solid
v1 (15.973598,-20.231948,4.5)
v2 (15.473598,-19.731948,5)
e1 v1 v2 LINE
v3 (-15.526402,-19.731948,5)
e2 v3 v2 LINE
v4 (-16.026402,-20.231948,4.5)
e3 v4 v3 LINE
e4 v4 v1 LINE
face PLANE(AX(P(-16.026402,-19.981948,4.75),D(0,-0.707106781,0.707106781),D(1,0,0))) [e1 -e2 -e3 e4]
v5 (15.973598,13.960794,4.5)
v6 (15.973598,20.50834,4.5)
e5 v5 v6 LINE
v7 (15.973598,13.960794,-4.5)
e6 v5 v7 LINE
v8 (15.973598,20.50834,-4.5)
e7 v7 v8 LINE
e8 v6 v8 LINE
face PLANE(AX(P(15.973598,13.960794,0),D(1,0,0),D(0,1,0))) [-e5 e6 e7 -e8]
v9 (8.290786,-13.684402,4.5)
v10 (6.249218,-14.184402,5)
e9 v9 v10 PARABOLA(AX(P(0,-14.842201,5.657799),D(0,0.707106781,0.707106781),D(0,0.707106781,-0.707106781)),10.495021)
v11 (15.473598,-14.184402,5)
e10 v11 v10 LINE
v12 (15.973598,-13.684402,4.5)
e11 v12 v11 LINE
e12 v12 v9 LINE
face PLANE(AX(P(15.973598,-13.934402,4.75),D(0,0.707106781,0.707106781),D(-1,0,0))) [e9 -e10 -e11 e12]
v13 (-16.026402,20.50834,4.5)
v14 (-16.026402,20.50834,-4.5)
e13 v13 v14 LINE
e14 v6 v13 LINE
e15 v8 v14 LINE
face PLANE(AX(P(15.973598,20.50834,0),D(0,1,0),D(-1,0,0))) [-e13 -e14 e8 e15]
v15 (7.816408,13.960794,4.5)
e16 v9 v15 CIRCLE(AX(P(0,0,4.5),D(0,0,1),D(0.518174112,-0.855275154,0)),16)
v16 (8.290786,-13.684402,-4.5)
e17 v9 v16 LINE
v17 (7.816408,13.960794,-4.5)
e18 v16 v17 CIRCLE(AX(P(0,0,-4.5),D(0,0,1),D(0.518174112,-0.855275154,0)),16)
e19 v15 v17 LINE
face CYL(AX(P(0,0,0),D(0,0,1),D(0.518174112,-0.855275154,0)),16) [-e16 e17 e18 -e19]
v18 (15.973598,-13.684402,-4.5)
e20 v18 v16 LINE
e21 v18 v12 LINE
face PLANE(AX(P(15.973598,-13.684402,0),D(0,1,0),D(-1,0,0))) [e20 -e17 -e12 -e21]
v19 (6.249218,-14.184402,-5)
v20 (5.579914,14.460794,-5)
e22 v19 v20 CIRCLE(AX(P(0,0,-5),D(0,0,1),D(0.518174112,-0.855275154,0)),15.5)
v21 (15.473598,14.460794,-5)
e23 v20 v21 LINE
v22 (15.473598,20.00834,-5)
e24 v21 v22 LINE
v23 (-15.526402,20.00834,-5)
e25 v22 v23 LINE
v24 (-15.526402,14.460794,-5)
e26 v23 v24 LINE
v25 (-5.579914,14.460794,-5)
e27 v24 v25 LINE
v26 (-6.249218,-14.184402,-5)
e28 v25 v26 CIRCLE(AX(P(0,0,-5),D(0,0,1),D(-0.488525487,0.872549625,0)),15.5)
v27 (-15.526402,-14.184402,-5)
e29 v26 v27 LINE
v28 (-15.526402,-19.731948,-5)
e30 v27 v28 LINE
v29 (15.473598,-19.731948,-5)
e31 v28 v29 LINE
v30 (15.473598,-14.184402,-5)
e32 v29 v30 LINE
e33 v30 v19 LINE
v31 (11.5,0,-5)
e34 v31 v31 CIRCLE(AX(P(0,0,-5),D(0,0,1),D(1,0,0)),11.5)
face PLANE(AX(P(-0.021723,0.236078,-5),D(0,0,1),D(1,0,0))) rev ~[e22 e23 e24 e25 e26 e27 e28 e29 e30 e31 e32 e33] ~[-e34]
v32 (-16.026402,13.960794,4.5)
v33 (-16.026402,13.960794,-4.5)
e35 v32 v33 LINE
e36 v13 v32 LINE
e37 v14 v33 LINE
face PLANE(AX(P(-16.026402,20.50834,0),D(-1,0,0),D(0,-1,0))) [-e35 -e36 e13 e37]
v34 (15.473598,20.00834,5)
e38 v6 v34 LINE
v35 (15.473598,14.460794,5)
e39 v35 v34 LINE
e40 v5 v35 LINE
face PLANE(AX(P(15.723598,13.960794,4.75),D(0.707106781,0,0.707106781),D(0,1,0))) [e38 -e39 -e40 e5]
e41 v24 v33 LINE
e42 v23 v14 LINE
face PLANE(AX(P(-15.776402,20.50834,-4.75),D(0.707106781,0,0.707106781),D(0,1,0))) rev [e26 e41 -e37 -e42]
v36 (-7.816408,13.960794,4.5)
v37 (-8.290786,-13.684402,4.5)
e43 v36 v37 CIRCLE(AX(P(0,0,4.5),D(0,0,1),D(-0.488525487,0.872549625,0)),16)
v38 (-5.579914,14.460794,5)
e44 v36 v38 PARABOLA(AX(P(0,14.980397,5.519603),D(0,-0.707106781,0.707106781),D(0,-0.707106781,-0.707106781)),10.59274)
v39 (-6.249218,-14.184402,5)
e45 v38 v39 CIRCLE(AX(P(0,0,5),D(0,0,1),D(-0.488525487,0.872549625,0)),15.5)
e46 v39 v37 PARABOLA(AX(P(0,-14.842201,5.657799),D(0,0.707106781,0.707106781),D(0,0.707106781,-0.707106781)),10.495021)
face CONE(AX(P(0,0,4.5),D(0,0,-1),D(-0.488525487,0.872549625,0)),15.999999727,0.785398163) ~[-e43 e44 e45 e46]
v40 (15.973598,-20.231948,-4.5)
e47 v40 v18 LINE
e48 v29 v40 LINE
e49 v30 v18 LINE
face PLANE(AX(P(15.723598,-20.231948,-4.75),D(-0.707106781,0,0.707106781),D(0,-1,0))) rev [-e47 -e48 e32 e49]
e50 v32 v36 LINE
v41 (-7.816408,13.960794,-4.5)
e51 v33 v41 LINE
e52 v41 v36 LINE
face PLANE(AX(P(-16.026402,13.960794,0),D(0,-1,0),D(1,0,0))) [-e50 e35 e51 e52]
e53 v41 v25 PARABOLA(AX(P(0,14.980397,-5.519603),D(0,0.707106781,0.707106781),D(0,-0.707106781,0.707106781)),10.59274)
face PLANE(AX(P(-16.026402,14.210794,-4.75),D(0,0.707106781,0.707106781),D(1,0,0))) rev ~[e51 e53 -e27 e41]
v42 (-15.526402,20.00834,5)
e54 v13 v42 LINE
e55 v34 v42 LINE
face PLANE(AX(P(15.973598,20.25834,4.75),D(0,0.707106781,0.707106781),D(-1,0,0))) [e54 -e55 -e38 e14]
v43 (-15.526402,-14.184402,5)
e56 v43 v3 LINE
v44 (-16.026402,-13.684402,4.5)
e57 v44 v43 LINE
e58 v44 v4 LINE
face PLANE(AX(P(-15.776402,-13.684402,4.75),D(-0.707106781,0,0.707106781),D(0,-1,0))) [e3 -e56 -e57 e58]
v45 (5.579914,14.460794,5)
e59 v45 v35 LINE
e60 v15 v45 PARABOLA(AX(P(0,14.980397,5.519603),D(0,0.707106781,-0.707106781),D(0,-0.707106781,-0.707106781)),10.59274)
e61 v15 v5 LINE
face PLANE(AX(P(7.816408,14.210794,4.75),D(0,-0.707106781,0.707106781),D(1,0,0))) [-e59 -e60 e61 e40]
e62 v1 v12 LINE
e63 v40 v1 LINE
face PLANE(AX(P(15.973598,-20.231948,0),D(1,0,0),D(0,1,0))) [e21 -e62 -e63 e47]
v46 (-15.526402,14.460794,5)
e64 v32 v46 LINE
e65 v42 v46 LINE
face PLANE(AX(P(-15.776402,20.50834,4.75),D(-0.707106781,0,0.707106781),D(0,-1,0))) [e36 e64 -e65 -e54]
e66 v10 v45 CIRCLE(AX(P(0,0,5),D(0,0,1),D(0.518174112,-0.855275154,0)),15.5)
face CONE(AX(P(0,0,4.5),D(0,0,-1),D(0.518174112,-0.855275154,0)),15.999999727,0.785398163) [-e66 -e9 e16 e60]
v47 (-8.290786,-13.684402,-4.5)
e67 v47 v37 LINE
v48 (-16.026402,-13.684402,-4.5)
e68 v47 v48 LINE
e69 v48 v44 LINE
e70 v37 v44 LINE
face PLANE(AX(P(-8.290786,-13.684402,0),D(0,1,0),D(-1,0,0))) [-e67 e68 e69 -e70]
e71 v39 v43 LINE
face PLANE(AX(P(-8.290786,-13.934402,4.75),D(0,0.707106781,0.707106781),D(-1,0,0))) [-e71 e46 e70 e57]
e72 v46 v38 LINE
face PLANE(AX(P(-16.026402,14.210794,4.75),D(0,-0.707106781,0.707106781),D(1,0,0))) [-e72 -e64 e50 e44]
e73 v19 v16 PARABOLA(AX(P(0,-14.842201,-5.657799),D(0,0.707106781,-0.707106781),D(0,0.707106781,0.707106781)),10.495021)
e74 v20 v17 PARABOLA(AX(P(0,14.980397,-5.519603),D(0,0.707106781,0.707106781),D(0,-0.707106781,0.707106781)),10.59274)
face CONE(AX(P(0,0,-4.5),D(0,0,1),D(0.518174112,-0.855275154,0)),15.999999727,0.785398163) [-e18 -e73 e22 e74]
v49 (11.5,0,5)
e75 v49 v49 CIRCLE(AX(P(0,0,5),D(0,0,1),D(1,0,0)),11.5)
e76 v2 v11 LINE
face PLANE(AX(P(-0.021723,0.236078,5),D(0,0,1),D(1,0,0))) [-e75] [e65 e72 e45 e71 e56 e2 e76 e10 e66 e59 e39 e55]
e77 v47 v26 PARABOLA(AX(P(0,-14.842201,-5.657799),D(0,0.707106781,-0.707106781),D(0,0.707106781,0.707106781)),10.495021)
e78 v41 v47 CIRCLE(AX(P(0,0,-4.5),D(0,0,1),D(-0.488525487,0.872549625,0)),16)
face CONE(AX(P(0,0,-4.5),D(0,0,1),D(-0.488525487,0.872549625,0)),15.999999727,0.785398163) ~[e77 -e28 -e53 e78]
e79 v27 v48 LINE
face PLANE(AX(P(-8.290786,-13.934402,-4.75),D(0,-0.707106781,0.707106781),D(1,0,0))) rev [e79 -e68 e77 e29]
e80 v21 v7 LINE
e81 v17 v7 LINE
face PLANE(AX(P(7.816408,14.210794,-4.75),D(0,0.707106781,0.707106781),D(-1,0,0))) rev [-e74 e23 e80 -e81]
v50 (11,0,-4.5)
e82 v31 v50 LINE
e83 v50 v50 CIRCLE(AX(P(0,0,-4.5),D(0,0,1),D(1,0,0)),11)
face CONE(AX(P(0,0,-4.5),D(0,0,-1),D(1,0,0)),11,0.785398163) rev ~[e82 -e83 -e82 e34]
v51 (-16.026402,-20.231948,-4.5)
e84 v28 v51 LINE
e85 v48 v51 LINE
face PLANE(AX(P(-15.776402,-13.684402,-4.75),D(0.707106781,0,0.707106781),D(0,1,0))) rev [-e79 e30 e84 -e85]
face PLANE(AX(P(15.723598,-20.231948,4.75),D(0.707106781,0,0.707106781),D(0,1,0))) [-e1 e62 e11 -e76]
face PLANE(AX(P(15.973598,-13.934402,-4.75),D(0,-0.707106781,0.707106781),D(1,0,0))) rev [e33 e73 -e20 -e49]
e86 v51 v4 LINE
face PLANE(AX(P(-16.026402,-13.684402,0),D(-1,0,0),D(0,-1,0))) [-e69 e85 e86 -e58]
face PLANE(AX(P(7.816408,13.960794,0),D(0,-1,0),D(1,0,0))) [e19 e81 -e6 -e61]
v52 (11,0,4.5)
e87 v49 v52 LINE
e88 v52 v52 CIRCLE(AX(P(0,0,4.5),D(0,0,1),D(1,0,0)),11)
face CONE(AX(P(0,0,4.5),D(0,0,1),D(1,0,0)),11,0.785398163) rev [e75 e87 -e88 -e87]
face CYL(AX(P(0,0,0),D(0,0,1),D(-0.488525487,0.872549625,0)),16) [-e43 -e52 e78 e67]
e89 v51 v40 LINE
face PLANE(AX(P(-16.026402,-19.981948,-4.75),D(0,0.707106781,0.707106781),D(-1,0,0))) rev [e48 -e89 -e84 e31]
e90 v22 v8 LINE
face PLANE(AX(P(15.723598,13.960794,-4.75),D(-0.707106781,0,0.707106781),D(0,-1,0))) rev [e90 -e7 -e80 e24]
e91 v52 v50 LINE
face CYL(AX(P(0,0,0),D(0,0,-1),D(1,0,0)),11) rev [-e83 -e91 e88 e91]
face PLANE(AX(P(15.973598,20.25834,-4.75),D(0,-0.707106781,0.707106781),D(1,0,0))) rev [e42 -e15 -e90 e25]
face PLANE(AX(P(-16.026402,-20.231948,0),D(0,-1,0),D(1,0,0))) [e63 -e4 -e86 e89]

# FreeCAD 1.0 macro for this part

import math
import FreeCAD as App
import Part
import Sketcher
Q = App.Units.Quantity


def edges_at(feature, points):
    """Names of the edges that pass closest to the given points."""
    edges = feature.Shape.Edges
    near = lambda p: min(range(len(edges)), key=lambda i: edges[i].distToShape(Part.Vertex(*p))[0])
    return sorted({f"Edge{near(p) + 1}" for p in points})

doc = App.newDocument("Part")
body = doc.addObject("PartDesign::Body", "Body")

# Sketch on XY plane
sketch1 = body.newObject("Sketcher::SketchObject", "Sketch")
sketch1.AttachmentSupport = (doc.getObject("XY_Plane"), [""])
sketch1.MapMode = "FlatFace"
sketch1.addGeometry(Part.LineSegment(App.Vector(-16, 14, 0), App.Vector(-8, 14, 0)), False)
sketch1.addGeometry(Part.ArcOfCircle(Part.Circle(App.Vector(0, 0, 0), App.Vector(0, 0, 1), 16), math.radians(119), math.radians(239)), False)
sketch1.addGeometry(Part.LineSegment(App.Vector(-8, -14, 0), App.Vector(-16, -14, 0)), False)
sketch1.addGeometry(Part.LineSegment(App.Vector(-16, -14, 0), App.Vector(-16, -20, 0)), False)
sketch1.addGeometry(Part.LineSegment(App.Vector(-16, -20, 0), App.Vector(16, -20, 0)), False)
sketch1.addGeometry(Part.LineSegment(App.Vector(16, -20, 0), App.Vector(16, -14, 0)), False)
sketch1.addGeometry(Part.LineSegment(App.Vector(16, -14, 0), App.Vector(8, -14, 0)), False)
sketch1.addGeometry(Part.ArcOfCircle(Part.Circle(App.Vector(0, 0, 0), App.Vector(0, 0, 1), 16), math.radians(-59), math.radians(61)), False)
sketch1.addGeometry(Part.LineSegment(App.Vector(8, 14, 0), App.Vector(16, 14, 0)), False)
sketch1.addGeometry(Part.LineSegment(App.Vector(16, 14, 0), App.Vector(16, 21, 0)), False)
sketch1.addGeometry(Part.LineSegment(App.Vector(16, 21, 0), App.Vector(-16, 21, 0)), False)
sketch1.addGeometry(Part.LineSegment(App.Vector(-16, 21, 0), App.Vector(-16, 14, 0)), False)
sketch1.addGeometry(Part.Circle(App.Vector(0, 0, 0), App.Vector(0, 0, 1), 11), False)
sketch1.addConstraint(Sketcher.Constraint("Coincident", 0, 2, 1, 1))
sketch1.addConstraint(Sketcher.Constraint("Coincident", 1, 2, 2, 1))
sketch1.addConstraint(Sketcher.Constraint("Coincident", 2, 2, 3, 1))
sketch1.addConstraint(Sketcher.Constraint("Coincident", 3, 2, 4, 1))
sketch1.addConstraint(Sketcher.Constraint("Coincident", 4, 2, 5, 1))
sketch1.addConstraint(Sketcher.Constraint("Coincident", 5, 2, 6, 1))
sketch1.addConstraint(Sketcher.Constraint("Coincident", 6, 2, 7, 1))
sketch1.addConstraint(Sketcher.Constraint("Coincident", 7, 2, 8, 1))
sketch1.addConstraint(Sketcher.Constraint("Coincident", 8, 2, 9, 1))
sketch1.addConstraint(Sketcher.Constraint("Coincident", 9, 2, 10, 1))
sketch1.addConstraint(Sketcher.Constraint("Coincident", 10, 2, 11, 1))
sketch1.addConstraint(Sketcher.Constraint("Coincident", 11, 2, 0, 1))
sketch1.addConstraint(Sketcher.Constraint("Horizontal", 0))
sketch1.addConstraint(Sketcher.Constraint("Horizontal", 2))
sketch1.addConstraint(Sketcher.Constraint("Vertical", 3))
sketch1.addConstraint(Sketcher.Constraint("Horizontal", 4))
sketch1.addConstraint(Sketcher.Constraint("Vertical", 5))
sketch1.addConstraint(Sketcher.Constraint("Horizontal", 6))
sketch1.addConstraint(Sketcher.Constraint("Horizontal", 8))
sketch1.addConstraint(Sketcher.Constraint("Vertical", 9))
sketch1.addConstraint(Sketcher.Constraint("Horizontal", 10))
sketch1.addConstraint(Sketcher.Constraint("Vertical", 11))
sketch1.addConstraint(Sketcher.Constraint("Coincident", 1, 3, -1, 1))
sketch1.addConstraint(Sketcher.Constraint("Coincident", 7, 3, -1, 1))
sketch1.addConstraint(Sketcher.Constraint("Coincident", 12, 3, -1, 1))
sketch1.addConstraint(Sketcher.Constraint("Equal", 1, 7))
sketch1.addConstraint(Sketcher.Constraint("Horizontal", 2, 2, 5, 2))
sketch1.addConstraint(Sketcher.Constraint("Horizontal", 0, 2, 7, 2))
sketch1.addConstraint(Sketcher.Constraint("Vertical", 5, 2, 8, 2))
sketch1.addConstraint(Sketcher.Constraint("Vertical", 3, 2, 10, 2))
sketch1.addConstraint(Sketcher.Constraint("Equal", 5, 9))
sketch1.addConstraint(Sketcher.Constraint("Diameter", 12, Q("22 mm")))
sketch1.addConstraint(Sketcher.Constraint("Radius", 1, Q("16 mm")))
sketch1.addConstraint(Sketcher.Constraint("DistanceX", 4, 1, 4, 2, Q("32 mm")))
sketch1.addConstraint(Sketcher.Constraint("DistanceX", 8, 1, 8, 2, Q("8.15719 mm")))
sketch1.addConstraint(Sketcher.Constraint("DistanceY", 1, 2, -1, 1, Q("13.684402 mm")))
sketch1.addConstraint(Sketcher.Constraint("DistanceX", -1, 1, 4, 2, Q("15.973598 mm")))
sketch1.addConstraint(Sketcher.Constraint("DistanceY", 3, 2, 3, 1, Q("6.547546 mm")))
pad1 = body.newObject("PartDesign::Pad", "Pad")
pad1.Profile = sketch1
pad1.Length = 10
pad1.Midplane = True
doc.recompute()

chamfer = body.newObject("PartDesign::Chamfer", "Chamfer")
chamfer.Base = (pad1, edges_at(pad1, [
    (15.974, 17.235, 5),
    (-0.026, 20.508, 5),
    (-16.026, 17.235, 5),
    (-11.921, 13.961, 5),
    (-15.998, 0.275, 5),
    (-12.159, -13.684, 5),
    (-16.026, -16.958, 5),
    (-0.026, -20.232, 5),
    (15.974, -16.958, 5),
    (12.132, -13.684, 5),
    (15.998, 0.275, 5),
    (11.895, 13.961, 5),
    (-11, 0, 5),
]))
chamfer.ChamferType = "Two distances"
chamfer.Size = 0.5
chamfer.Size2 = 0.5
doc.recompute()

chamfer2 = body.newObject("PartDesign::Chamfer", "Chamfer001")
chamfer2.Base = (chamfer, edges_at(chamfer, [
    (15.974, 17.235, -5),
    (-0.026, 20.508, -5),
    (-16.026, 17.235, -5),
    (-11.921, 13.961, -5),
    (-15.998, 0.275, -5),
    (-12.159, -13.684, -5),
    (-16.026, -16.958, -5),
    (-0.026, -20.232, -5),
    (15.974, -16.958, -5),
    (12.132, -13.684, -5),
    (15.998, 0.275, -5),
    (11.895, 13.961, -5),
    (-11, 0, -5),
]))
chamfer2.ChamferType = "Two distances"
chamfer2.Size = 0.5
chamfer2.Size2 = 0.5

doc.recompute()
